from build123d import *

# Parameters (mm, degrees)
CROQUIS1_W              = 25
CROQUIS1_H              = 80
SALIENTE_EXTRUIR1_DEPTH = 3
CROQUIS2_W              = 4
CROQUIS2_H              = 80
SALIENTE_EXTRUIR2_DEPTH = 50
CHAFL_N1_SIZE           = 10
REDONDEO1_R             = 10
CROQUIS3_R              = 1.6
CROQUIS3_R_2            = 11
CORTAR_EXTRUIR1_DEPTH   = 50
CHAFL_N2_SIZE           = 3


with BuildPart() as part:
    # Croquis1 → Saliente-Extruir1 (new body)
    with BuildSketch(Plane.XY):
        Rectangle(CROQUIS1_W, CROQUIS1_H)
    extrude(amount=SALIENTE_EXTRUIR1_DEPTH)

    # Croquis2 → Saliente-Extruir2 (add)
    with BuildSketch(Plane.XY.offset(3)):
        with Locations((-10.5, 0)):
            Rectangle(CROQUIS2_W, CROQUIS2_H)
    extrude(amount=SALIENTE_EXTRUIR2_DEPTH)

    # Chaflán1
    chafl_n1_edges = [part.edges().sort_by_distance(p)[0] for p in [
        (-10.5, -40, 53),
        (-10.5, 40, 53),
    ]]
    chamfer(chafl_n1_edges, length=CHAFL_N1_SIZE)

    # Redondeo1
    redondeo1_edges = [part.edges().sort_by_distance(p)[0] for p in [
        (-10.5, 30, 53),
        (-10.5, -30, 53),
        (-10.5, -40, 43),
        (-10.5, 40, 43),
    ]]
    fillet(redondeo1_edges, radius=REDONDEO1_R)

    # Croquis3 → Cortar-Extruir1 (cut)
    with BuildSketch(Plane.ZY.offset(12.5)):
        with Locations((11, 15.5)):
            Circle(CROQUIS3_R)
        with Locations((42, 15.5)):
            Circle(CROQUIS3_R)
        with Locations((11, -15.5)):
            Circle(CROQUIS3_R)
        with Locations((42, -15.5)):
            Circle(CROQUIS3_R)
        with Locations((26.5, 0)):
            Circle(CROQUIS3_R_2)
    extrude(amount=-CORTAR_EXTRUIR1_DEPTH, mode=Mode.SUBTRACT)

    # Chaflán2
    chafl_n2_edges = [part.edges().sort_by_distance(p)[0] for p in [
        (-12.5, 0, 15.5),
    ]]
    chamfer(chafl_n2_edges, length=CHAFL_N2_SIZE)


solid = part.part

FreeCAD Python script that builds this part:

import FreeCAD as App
import Part
import Sketcher
from FreeCAD import Vector
Q = App.Units.Quantity


def edges_at(feature, points):
    """Names of the edges that pass closest to the given points."""
    edges = feature.Shape.Edges
    near = lambda p: min(range(len(edges)), key=lambda i: edges[i].distToShape(Part.Vertex(*p))[0])
    return sorted({f"Edge{near(p) + 1}" for p in points})


def add_polygon(sketch, points):
    """Adds a closed chain of lines whose ends are joined by coincident constraints."""
    first, n = sketch.GeometryCount, len(points)
    for a, b in zip(points, points[1:] + points[:1]):
        sketch.addGeometry(Part.LineSegment(App.Vector(*a, 0), App.Vector(*b, 0)), False)
    for i in range(n):
        sketch.addConstraint(Sketcher.Constraint("Coincident", first + i, 2, first + (i + 1) % n, 1))

doc = App.newDocument("Part")
body = doc.addObject("PartDesign::Body", "Body")

# Sketch on XY plane
sketch1 = body.newObject("Sketcher::SketchObject", "Sketch")
sketch1.AttachmentSupport = (doc.getObject("XY_Plane"), [""])
sketch1.MapMode = "FlatFace"
add_polygon(sketch1, [(-12, 40), (-12, -40), (12, -40), (12, 40)])  # lines 0-3
sketch1.addConstraint(Sketcher.Constraint("Vertical", 0))
sketch1.addConstraint(Sketcher.Constraint("Horizontal", 1))
sketch1.addConstraint(Sketcher.Constraint("Vertical", 2))
sketch1.addConstraint(Sketcher.Constraint("Horizontal", 3))
sketch1.addConstraint(Sketcher.Constraint("Symmetric", 0, 2, 2, 2, -1, 1))
sketch1.addConstraint(Sketcher.Constraint("DistanceX", 1, 1, 1, 2, Q("25 mm")))
sketch1.addConstraint(Sketcher.Constraint("DistanceY", 0, 2, 0, 1, Q("80 mm")))
pad1 = body.newObject("PartDesign::Pad", "Pad")
pad1.Profile = sketch1
pad1.Length = 3

# Sketch on XY plane
sketch2 = body.newObject("Sketcher::SketchObject", "Sketch001")
sketch2.AttachmentSupport = (doc.getObject("XY_Plane"), [""])
sketch2.MapMode = "FlatFace"
sketch2.AttachmentOffset = App.Placement(Vector(0, 0, 3), App.Rotation())
add_polygon(sketch2, [(-12.5, 40), (-12.5, -40), (-8.5, -40), (-8.5, 40)])  # lines 0-3
sketch2.addConstraint(Sketcher.Constraint("Vertical", 0))
sketch2.addConstraint(Sketcher.Constraint("Horizontal", 1))
sketch2.addConstraint(Sketcher.Constraint("Vertical", 2))
sketch2.addConstraint(Sketcher.Constraint("Horizontal", 3))
sketch2.addConstraint(Sketcher.Constraint("DistanceX", 1, 1, 1, 2, Q("4 mm")))
sketch2.addConstraint(Sketcher.Constraint("DistanceY", 0, 2, 0, 1, Q("80 mm")))
sketch2.addConstraint(Sketcher.Constraint("DistanceY", 0, 2, -1, 1, Q("40 mm")))
sketch2.addConstraint(Sketcher.Constraint("DistanceX", 0, 2, -1, 1, Q("12.5 mm")))
pad2 = body.newObject("PartDesign::Pad", "Pad001")
pad2.Profile = sketch2
pad2.Length = 50
doc.recompute()

chamfer = body.newObject("PartDesign::Chamfer", "Chamfer")
chamfer.Base = (pad2, edges_at(pad2, [(-10.5, -40, 53), (-10.5, 40, 53)]))
chamfer.Size = 10
doc.recompute()

fillet = body.newObject("PartDesign::Fillet", "Fillet")
fillet.Base = (chamfer, edges_at(chamfer, [
    (-10.5, 30, 53),
    (-10.5, -30, 53),
    (-10.5, -40, 43),
    (-10.5, 40, 43),
]))
fillet.Radius = 10

# Sketch on YZ plane
sketch3 = body.newObject("Sketcher::SketchObject", "Sketch002")
sketch3.AttachmentSupport = (doc.getObject("YZ_Plane"), [""])
sketch3.MapMode = "FlatFace"
sketch3.AttachmentOffset = App.Placement(Vector(0, 0, -12.5), App.Rotation())
sketch3.addGeometry(Part.Circle(Vector(15.5, 11, 0), Vector(0, 0, 1), 1.6), False)
sketch3.addGeometry(Part.Circle(Vector(15.5, 42, 0), Vector(0, 0, 1), 1.6), False)
sketch3.addGeometry(Part.Circle(Vector(-15.5, 11, 0), Vector(0, 0, 1), 1.6), False)
sketch3.addGeometry(Part.Circle(Vector(-15.5, 42, 0), Vector(0, 0, 1), 1.6), False)
sketch3.addGeometry(Part.Circle(Vector(0, 26.5, 0), Vector(0, 0, 1), 11), False)
sketch3.addConstraint(Sketcher.Constraint("Equal", 0, 1))
sketch3.addConstraint(Sketcher.Constraint("Equal", 1, 2))
sketch3.addConstraint(Sketcher.Constraint("Equal", 2, 3))
sketch3.addConstraint(Sketcher.Constraint("Symmetric", 0, 3, 2, 3, -2))
sketch3.addConstraint(Sketcher.Constraint("Symmetric", 1, 3, 3, 3, -2))
sketch3.addConstraint(Sketcher.Constraint("PointOnObject", 4, 3, -2))
sketch3.addConstraint(Sketcher.Constraint("Vertical", 0, 3, 1, 3))
sketch3.addConstraint(Sketcher.Constraint("Diameter", 4, Q("22 mm")))
sketch3.addConstraint(Sketcher.Constraint("Diameter", 0, Q("3.2 mm")))
sketch3.addConstraint(Sketcher.Constraint("DistanceY", -1, 1, 0, 3, Q("11 mm")))
sketch3.addConstraint(Sketcher.Constraint("DistanceY", -1, 1, 1, 3, Q("42 mm")))
sketch3.addConstraint(Sketcher.Constraint("DistanceX", 2, 3, 0, 3, Q("31 mm")))
sketch3.addConstraint(Sketcher.Constraint("DistanceY", -1, 1, 4, 3, Q("26.5 mm")))
pocket1 = body.newObject("PartDesign::Pocket", "Pocket")
pocket1.Profile = sketch3
pocket1.Length = 50
pocket1.Reversed = True
doc.recompute()

chamfer2 = body.newObject("PartDesign::Chamfer", "Chamfer001")
chamfer2.Base = (pocket1, edges_at(pocket1, [(-12.5, 0, 15.5)]))
chamfer2.Size = 3

doc.recompute()
